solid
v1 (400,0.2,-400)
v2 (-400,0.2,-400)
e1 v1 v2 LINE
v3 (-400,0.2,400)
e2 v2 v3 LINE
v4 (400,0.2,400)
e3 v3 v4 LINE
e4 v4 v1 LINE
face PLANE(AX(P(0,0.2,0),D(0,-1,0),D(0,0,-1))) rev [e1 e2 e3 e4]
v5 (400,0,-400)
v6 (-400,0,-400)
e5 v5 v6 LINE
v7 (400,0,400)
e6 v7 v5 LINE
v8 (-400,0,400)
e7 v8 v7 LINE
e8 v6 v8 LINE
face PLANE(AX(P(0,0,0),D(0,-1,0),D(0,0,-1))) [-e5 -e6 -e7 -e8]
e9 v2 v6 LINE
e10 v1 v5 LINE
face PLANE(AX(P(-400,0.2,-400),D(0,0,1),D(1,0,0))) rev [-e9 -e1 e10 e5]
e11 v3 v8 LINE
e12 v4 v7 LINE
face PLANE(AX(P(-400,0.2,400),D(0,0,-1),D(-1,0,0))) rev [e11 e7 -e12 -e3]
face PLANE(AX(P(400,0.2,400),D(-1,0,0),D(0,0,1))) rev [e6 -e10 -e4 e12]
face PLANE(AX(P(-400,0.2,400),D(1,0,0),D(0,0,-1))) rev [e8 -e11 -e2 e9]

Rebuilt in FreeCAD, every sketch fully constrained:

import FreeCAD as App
import Part
import Sketcher

V = App.Vector

doc = App.newDocument("Part")
body = doc.addObject("PartDesign::Body", "Body")

sketch1 = body.newObject("Sketcher::SketchObject", "Sketch")
sketch1.AttachmentSupport = (doc.getObject("XZ_Plane"), [""])
sketch1.MapMode = "FlatFace"
sketch1.addGeometry([
    Part.LineSegment(V(-400, -400, 0), V(-400, 400, 0)),
    Part.LineSegment(V(-400, 400, 0), V(400, 400, 0)),
    Part.LineSegment(V(400, 400, 0), V(400, -400, 0)),
    Part.LineSegment(V(400, -400, 0), V(-400, -400, 0)),
], False)
sketch1.addConstraint([
    Sketcher.Constraint("Coincident", 0, 2, 1, 1),
    Sketcher.Constraint("Coincident", 1, 2, 2, 1),
    Sketcher.Constraint("Coincident", 2, 2, 3, 1),
    Sketcher.Constraint("Coincident", 3, 2, 0, 1),
    Sketcher.Constraint("Vertical", 0),
    Sketcher.Constraint("Horizontal", 1),
    Sketcher.Constraint("Vertical", 2),
    Sketcher.Constraint("Horizontal", 3),
    Sketcher.Constraint("Symmetric", 0, 2, 2, 2, -1, 1),
    Sketcher.Constraint("Equal", 3, 0),
    Sketcher.Constraint("DistanceX", 1, 1, 1, 2, 800.0),
])
pad1 = body.newObject("PartDesign::Pad", "Pad")
pad1.Profile = sketch1
pad1.Length = 0.2
pad1.Reversed = True

doc.recompute()
